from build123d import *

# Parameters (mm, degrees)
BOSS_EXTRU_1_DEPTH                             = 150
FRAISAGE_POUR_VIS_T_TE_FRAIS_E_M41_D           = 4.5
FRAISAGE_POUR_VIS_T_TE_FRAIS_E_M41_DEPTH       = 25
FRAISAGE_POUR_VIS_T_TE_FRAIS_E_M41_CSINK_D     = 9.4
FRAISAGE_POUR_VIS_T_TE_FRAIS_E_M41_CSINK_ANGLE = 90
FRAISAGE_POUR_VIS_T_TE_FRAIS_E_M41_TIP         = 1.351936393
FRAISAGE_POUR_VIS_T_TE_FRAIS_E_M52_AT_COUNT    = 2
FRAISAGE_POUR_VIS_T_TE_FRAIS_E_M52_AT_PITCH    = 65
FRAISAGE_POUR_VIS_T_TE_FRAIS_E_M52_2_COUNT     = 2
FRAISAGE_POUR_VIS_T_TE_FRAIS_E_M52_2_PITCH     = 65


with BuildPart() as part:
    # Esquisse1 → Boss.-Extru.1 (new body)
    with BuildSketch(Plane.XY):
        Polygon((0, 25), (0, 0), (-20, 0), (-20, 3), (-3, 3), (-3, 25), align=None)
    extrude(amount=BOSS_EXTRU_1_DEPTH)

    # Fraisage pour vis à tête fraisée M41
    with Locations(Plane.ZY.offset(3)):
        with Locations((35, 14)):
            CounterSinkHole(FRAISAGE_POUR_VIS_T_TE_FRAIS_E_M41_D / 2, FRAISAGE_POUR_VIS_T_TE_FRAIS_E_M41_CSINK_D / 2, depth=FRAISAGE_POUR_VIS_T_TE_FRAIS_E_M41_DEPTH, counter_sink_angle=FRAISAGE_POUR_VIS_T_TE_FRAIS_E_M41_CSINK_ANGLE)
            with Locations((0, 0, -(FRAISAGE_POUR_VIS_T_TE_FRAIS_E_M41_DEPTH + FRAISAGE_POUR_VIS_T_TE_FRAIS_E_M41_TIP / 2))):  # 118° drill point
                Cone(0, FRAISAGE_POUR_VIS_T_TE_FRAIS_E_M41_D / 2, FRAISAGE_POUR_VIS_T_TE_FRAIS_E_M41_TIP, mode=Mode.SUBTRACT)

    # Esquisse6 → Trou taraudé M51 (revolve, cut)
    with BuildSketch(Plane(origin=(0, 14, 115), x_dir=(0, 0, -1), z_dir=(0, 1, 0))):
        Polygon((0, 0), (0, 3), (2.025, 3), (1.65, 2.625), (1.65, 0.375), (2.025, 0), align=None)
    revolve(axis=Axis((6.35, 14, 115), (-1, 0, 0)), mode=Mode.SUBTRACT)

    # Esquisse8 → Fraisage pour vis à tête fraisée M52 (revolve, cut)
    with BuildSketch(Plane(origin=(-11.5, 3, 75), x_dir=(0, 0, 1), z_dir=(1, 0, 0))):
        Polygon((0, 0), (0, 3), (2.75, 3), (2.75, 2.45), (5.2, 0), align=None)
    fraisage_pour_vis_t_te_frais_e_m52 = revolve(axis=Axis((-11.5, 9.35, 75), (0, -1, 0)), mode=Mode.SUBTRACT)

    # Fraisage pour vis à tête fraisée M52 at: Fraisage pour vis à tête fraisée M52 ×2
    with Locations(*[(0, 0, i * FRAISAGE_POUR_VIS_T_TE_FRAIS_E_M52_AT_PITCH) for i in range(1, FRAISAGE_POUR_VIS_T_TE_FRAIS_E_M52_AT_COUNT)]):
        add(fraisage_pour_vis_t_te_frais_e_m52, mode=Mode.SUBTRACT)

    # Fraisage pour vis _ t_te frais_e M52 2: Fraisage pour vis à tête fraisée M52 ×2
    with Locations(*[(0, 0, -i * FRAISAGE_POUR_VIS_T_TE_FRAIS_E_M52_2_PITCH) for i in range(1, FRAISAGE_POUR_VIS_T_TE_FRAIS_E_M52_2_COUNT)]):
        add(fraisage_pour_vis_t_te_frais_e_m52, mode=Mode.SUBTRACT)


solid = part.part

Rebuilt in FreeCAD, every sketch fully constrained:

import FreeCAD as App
import Part
import Sketcher
from FreeCAD import Vector
Q = App.Units.Quantity


def add_polygon(sketch, points):
    """Adds a closed chain of lines whose ends are joined by coincident constraints."""
    first, n = sketch.GeometryCount, len(points)
    for a, b in zip(points, points[1:] + points[:1]):
        sketch.addGeometry(Part.LineSegment(App.Vector(*a, 0), App.Vector(*b, 0)), False)
    for i in range(n):
        sketch.addConstraint(Sketcher.Constraint("Coincident", first + i, 2, first + (i + 1) % n, 1))

doc = App.newDocument("Part")
body = doc.addObject("PartDesign::Body", "Body")

# Sketch on XY plane
sketch1 = doc.addObject("Sketcher::SketchObject", "Sketch")
body.addObject(sketch1)
sketch1.AttachmentSupport = (doc.XY_Plane, [""])
sketch1.MapMode = "FlatFace"
add_polygon(sketch1, [(0, 0), (0, 25), (-3, 25), (-3, 3), (-20, 3), (-20, 0)])  # lines 0-5
sketch1.addConstraint([
    Sketcher.Constraint("Vertical", 0),
    Sketcher.Constraint("Horizontal", 1),
    Sketcher.Constraint("Vertical", 2),
    Sketcher.Constraint("Horizontal", 3),
    Sketcher.Constraint("Vertical", 4),
    Sketcher.Constraint("Horizontal", 5),
    Sketcher.Constraint("Coincident", 5, 2, -1, 1),
    Sketcher.Constraint("Equal", 1, 4),
    Sketcher.Constraint("DistanceX", 1, 2, 1, 1, 3.0),
    Sketcher.Constraint("DistanceX", 3, 2, 3, 1, 17.0),
    Sketcher.Constraint("DistanceY", 0, 1, 0, 2, 25.0),
])
pad1 = doc.addObject("PartDesign::Pad", "Pad")
body.addObject(pad1)
pad1.Profile = sketch1
pad1.Length = 150

# Sketch on YZ plane
sketch2 = doc.addObject("Sketcher::SketchObject", "Sketch001")
body.addObject(sketch2)
sketch2.AttachmentSupport = (doc.YZ_Plane, [""])
sketch2.MapMode = "FlatFace"
sketch2.AttachmentOffset = App.Placement(Vector(0, 0, -3), App.Rotation())
sketch2.addGeometry(Part.Circle(Vector(14, 35, 0), Vector(0, 0, 1), 2.2), False)
sketch2.addConstraint([
    Sketcher.Constraint("Diameter", 0, 4.5),
    Sketcher.Constraint("DistanceX", -1, 1, 0, 3, 14.0),
    Sketcher.Constraint("DistanceY", -1, 1, 0, 3, 35.0),
])
doc.recompute()
hole = doc.addObject("PartDesign::Hole", "Hole")
body.addObject(hole)
hole.Profile = sketch2
hole.ThreadType = "None"
hole.Diameter = 4.5
hole.DepthType = "Dimension"
hole.Depth = 25
hole.DrillPoint = "Angled"
hole.DrillPointAngle = 118
hole.HoleCutType = "Countersink"
hole.HoleCutDiameter = 9.4
hole.HoleCutCountersinkAngle = 90
hole.Reversed = True

# Sketch on XZ plane
sketch3 = doc.addObject("Sketcher::SketchObject", "Sketch002")
body.addObject(sketch3)
sketch3.AttachmentSupport = (doc.XZ_Plane, [""])
sketch3.MapMode = "FlatFace"
sketch3.AttachmentOffset = App.Placement(Vector(0, 0, -14), App.Rotation())
add_polygon(sketch3, [(-3, 115), (0, 115), (0, 113), (-0.4, 113.3), (-2.6, 113.3), (-3, 113)])  # lines 0-5
sketch3.addGeometry(Part.LineSegment(Vector(0, 115, 0), Vector(-3, 115, 0)), True)  # axis
sketch3.addConstraint([
    Sketcher.Constraint("Horizontal", 0),
    Sketcher.Constraint("Vertical", 1),
    Sketcher.Constraint("Horizontal", 3),
    Sketcher.Constraint("Vertical", 5),
    Sketcher.Constraint("Horizontal", 6),
    Sketcher.Constraint("Coincident", 6, 1, 0, 2),
    Sketcher.Constraint("PointOnObject", 0, 2, -2),
    Sketcher.Constraint("Perpendicular", 2, 4),
    Sketcher.Constraint("Horizontal", 1, 2, 4, 2),
    Sketcher.Constraint("Vertical", 4, 2, 6, 2),
    Sketcher.Constraint("Equal", 2, 4),
    Sketcher.Constraint("DistanceX", 0, 1, 0, 2, 3.0),
    Sketcher.Constraint("DistanceY", -1, 1, 0, 2, 115.0),
    Sketcher.Constraint("DistanceX", 3, 2, 3, 1, 2.25),
    Sketcher.Constraint("DistanceY", 1, 2, 1, 1, 2.025),
])
groove = doc.addObject("PartDesign::Groove", "Groove")
body.addObject(groove)
groove.Profile = sketch3
groove.ReferenceAxis = (sketch3, ["Axis0"])
groove.Angle = 360

# Sketch on YZ plane
sketch4 = doc.addObject("Sketcher::SketchObject", "Sketch003")
body.addObject(sketch4)
sketch4.AttachmentSupport = (doc.YZ_Plane, [""])
sketch4.MapMode = "FlatFace"
sketch4.AttachmentOffset = App.Placement(Vector(0, 0, -11.5), App.Rotation())
add_polygon(sketch4, [(0, 75), (3, 75), (3, 80.2), (0.6, 77.8), (0, 77.8)])  # lines 0-4
sketch4.addGeometry(Part.LineSegment(Vector(3, 75, 0), Vector(0, 75, 0)), True)  # axis
sketch4.addConstraint([
    Sketcher.Constraint("Horizontal", 0),
    Sketcher.Constraint("Vertical", 1),
    Sketcher.Constraint("Horizontal", 3),
    Sketcher.Constraint("Vertical", 4),
    Sketcher.Constraint("Horizontal", 5),
    Sketcher.Constraint("Coincident", 5, 1, 0, 2),
    Sketcher.Constraint("PointOnObject", 3, 2, -2),
    Sketcher.Constraint("PointOnObject", 5, 2, -2),
    Sketcher.Constraint("DistanceX", 0, 1, 0, 2, 3.0),
    Sketcher.Constraint("Angle", 2, Q("-135 deg")),
    Sketcher.Constraint("DistanceY", 1, 1, 1, 2, 5.2),
    Sketcher.Constraint("DistanceY", -1, 1, 0, 2, 75.0),
    Sketcher.Constraint("DistanceX", 3, 2, 3, 1, 0.55),
])
groove2 = doc.addObject("PartDesign::Groove", "Groove001")
body.addObject(groove2)
groove2.Profile = sketch4
groove2.ReferenceAxis = (sketch4, ["Axis0"])
groove2.Angle = 360
doc.recompute()

linearpattern = doc.addObject("PartDesign::LinearPattern", "LinearPattern")
body.addObject(linearpattern)
linearpattern.Originals = [groove2]
linearpattern.Direction = (doc.Z_Axis, [""])
linearpattern.Mode = "offset"
linearpattern.Offset = 65
linearpattern.Occurrences = 2
body.Tip = linearpattern
doc.recompute()

linearpattern2 = doc.addObject("PartDesign::LinearPattern", "LinearPattern001")
body.addObject(linearpattern2)
linearpattern2.Originals = [groove2]
linearpattern2.Direction = (doc.Z_Axis, [""])
linearpattern2.Mode = "offset"
linearpattern2.Offset = 65
linearpattern2.Occurrences = 2
linearpattern2.Reversed = True
body.Tip = linearpattern2

doc.recompute()
